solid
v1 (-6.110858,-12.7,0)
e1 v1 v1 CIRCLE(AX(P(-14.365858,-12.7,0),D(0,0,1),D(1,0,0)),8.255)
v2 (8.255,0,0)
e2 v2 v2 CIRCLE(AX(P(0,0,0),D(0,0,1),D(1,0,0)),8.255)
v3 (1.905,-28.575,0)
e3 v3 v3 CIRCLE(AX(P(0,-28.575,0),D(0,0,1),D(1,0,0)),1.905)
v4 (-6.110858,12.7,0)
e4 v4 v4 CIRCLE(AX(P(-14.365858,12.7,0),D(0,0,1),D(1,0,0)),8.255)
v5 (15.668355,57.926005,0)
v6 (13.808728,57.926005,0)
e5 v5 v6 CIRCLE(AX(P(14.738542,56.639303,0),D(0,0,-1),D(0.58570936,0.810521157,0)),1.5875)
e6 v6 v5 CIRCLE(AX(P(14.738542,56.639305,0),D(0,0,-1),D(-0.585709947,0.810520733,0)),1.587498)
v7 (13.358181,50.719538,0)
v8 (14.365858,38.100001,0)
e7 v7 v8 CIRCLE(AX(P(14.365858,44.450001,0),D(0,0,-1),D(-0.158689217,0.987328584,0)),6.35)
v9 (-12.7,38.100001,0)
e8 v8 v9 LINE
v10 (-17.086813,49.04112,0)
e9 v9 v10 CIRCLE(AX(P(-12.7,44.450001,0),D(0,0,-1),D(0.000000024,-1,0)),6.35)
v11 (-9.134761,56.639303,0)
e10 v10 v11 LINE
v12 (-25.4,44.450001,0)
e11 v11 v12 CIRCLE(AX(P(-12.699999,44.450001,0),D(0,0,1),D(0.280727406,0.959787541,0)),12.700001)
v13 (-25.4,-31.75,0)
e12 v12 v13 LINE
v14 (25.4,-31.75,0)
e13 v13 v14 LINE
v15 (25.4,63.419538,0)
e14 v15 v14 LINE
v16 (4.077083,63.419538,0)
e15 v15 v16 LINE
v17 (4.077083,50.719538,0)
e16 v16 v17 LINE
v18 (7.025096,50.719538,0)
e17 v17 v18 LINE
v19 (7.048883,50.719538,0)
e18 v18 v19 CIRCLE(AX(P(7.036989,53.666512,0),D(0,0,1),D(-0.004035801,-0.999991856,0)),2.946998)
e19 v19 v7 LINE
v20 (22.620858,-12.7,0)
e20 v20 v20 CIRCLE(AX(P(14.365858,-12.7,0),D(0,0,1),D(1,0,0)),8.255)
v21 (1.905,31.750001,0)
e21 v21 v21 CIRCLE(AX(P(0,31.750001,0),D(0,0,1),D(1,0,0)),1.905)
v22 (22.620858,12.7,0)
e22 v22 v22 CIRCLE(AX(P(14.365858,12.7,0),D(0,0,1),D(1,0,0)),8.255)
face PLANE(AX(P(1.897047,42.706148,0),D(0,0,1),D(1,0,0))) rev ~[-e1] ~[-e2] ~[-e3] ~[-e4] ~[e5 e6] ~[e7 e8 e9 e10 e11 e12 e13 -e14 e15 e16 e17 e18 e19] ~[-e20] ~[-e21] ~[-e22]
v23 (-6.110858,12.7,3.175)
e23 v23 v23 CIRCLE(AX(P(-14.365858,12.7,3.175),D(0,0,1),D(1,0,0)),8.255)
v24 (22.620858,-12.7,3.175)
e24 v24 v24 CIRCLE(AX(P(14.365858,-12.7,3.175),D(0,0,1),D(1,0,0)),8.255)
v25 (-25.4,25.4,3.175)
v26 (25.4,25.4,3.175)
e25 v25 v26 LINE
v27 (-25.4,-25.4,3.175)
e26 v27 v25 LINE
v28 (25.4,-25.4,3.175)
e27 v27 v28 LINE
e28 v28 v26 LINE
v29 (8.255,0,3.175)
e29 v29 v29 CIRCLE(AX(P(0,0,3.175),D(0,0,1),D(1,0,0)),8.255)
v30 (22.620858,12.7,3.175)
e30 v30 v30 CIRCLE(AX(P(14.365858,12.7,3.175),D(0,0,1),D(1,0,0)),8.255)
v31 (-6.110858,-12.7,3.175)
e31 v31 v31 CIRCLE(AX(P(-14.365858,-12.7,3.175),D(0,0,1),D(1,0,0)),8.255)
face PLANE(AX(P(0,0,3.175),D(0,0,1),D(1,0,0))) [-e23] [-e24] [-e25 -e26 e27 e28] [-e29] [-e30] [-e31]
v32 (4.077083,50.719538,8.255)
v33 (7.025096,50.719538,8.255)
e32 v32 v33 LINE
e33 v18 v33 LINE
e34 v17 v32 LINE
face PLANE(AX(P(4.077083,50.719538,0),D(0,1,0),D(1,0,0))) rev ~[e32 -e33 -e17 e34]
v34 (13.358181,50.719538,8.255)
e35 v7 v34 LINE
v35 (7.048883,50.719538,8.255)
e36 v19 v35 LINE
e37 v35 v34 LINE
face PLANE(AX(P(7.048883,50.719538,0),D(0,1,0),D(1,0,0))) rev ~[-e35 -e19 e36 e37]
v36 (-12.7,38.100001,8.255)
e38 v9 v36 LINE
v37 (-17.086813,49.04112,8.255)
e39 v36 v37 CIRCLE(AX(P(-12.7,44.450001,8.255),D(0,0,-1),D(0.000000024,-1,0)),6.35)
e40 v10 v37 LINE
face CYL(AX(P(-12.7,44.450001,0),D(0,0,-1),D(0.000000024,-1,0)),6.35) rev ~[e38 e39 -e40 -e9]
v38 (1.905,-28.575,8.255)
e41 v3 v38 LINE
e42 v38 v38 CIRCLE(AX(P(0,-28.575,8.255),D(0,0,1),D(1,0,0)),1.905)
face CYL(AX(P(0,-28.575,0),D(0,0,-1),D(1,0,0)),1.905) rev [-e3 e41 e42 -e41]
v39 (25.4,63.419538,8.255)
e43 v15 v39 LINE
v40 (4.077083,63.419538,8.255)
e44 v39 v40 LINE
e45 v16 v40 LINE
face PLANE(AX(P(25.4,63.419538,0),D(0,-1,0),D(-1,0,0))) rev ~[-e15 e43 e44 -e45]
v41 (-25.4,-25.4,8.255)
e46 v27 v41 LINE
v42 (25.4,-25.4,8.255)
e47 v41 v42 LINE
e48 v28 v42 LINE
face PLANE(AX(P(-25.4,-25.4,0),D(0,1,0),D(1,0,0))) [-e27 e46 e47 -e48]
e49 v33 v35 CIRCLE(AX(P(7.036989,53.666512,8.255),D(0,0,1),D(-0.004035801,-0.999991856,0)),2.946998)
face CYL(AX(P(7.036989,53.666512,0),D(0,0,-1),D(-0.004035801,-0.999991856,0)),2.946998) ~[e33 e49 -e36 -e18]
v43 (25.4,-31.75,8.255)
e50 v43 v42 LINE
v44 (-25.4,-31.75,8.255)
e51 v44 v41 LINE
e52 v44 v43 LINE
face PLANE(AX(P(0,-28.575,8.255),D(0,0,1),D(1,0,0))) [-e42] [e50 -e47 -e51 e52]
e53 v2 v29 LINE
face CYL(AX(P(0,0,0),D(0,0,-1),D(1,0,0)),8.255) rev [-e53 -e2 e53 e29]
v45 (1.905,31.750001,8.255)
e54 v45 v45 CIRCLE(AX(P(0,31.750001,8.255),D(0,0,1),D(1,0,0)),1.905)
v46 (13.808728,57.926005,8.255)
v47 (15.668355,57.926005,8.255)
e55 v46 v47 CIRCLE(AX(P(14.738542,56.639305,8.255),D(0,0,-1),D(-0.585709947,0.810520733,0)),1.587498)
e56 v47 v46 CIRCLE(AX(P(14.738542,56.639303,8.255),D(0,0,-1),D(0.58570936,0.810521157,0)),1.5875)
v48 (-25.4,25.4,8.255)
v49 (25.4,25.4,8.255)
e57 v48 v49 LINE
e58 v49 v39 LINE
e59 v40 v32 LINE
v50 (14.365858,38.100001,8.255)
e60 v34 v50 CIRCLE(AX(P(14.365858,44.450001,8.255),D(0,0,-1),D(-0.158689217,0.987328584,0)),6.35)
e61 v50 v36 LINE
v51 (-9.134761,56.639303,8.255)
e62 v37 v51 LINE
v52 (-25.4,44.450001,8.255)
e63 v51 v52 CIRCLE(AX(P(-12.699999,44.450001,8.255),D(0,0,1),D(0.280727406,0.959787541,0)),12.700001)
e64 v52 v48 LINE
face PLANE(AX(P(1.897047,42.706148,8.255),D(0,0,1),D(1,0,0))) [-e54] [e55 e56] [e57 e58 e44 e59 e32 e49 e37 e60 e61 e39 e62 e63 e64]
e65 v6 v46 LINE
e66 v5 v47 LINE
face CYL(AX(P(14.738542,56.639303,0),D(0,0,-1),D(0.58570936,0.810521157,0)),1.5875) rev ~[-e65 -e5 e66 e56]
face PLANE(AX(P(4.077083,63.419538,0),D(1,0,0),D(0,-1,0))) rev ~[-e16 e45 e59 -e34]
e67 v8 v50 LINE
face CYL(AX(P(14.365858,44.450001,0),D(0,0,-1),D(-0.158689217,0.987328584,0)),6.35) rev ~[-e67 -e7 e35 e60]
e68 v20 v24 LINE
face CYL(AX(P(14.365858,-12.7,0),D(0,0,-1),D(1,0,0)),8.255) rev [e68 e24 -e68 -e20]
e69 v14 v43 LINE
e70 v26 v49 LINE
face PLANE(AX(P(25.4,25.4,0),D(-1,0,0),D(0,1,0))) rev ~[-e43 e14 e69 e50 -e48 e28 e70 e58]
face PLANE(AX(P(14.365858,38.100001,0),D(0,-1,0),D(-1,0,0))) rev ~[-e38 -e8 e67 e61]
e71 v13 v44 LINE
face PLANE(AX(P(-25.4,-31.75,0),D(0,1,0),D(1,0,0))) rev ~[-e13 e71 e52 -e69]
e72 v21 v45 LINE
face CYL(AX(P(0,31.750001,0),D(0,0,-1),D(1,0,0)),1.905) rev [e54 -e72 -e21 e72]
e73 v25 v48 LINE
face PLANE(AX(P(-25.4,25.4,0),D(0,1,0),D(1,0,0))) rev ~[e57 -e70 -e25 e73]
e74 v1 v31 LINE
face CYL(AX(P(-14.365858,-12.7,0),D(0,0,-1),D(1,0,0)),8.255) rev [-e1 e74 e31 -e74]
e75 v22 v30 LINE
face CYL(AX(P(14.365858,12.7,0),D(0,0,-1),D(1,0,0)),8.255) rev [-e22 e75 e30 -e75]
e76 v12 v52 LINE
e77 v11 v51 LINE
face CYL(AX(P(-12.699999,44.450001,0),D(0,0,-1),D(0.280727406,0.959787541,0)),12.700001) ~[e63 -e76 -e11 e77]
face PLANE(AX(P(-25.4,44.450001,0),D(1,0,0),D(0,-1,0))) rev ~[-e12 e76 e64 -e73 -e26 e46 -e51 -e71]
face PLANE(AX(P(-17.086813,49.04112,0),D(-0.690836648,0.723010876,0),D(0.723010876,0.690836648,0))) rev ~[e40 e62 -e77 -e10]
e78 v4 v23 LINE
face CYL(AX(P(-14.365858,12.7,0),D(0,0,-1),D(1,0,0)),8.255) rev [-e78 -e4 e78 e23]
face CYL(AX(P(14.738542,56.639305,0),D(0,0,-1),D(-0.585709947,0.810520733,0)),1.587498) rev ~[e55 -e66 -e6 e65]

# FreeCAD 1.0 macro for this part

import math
import FreeCAD as App
import Part
import Sketcher
Q = App.Units.Quantity

doc = App.newDocument("Part")
body = doc.addObject("PartDesign::Body", "Body")

sketch1 = body.newObject("Sketcher::SketchObject", "Sketch")
sketch1.AttachmentSupport = (doc.getObject("XY_Plane"), [""])
sketch1.MapMode = "FlatFace"
sketch1.addGeometry(Part.LineSegment(App.Vector(-25, 25, 0), App.Vector(-25, -25, 0)), False)
sketch1.addGeometry(Part.LineSegment(App.Vector(-25, -25, 0), App.Vector(25, -25, 0)), False)
sketch1.addGeometry(Part.LineSegment(App.Vector(25, -25, 0), App.Vector(25, 25, 0)), False)
sketch1.addGeometry(Part.LineSegment(App.Vector(25, 25, 0), App.Vector(-25, 25, 0)), False)
sketch1.addGeometry(Part.Circle(App.Vector(-14, -13, 0), App.Vector(0, 0, 1), 8), False)
sketch1.addGeometry(Part.Circle(App.Vector(14, -13, 0), App.Vector(0, 0, 1), 8), False)
sketch1.addGeometry(Part.Circle(App.Vector(-14, 13, 0), App.Vector(0, 0, 1), 8), False)
sketch1.addGeometry(Part.Circle(App.Vector(0, 0, 0), App.Vector(0, 0, 1), 8), False)
sketch1.addGeometry(Part.Circle(App.Vector(14, 13, 0), App.Vector(0, 0, 1), 8), False)
sketch1.addConstraint(Sketcher.Constraint("Coincident", 0, 2, 1, 1))
sketch1.addConstraint(Sketcher.Constraint("Coincident", 1, 2, 2, 1))
sketch1.addConstraint(Sketcher.Constraint("Coincident", 2, 2, 3, 1))
sketch1.addConstraint(Sketcher.Constraint("Coincident", 3, 2, 0, 1))
sketch1.addConstraint(Sketcher.Constraint("Vertical", 0))
sketch1.addConstraint(Sketcher.Constraint("Horizontal", 1))
sketch1.addConstraint(Sketcher.Constraint("Vertical", 2))
sketch1.addConstraint(Sketcher.Constraint("Horizontal", 3))
sketch1.addConstraint(Sketcher.Constraint("Coincident", 7, 3, -1, 1))
sketch1.addConstraint(Sketcher.Constraint("Equal", 4, 5))
sketch1.addConstraint(Sketcher.Constraint("Equal", 5, 6))
sketch1.addConstraint(Sketcher.Constraint("Equal", 6, 7))
sketch1.addConstraint(Sketcher.Constraint("Equal", 7, 8))
sketch1.addConstraint(Sketcher.Constraint("Symmetric", 5, 3, 6, 3, -1, 1))
sketch1.addConstraint(Sketcher.Constraint("Symmetric", 4, 3, 8, 3, -1, 1))
sketch1.addConstraint(Sketcher.Constraint("Symmetric", 0, 2, 2, 2, -1, 1))
sketch1.addConstraint(Sketcher.Constraint("Symmetric", 4, 3, 5, 3, -2))
sketch1.addConstraint(Sketcher.Constraint("Equal", 3, 0))
sketch1.addConstraint(Sketcher.Constraint("Diameter", 4, Q("0.65 in")))
sketch1.addConstraint(Sketcher.Constraint("DistanceX", 1, 1, 1, 2, Q("2 in")))
sketch1.addConstraint(Sketcher.Constraint("DistanceY", 4, 3, 6, 3, Q("1 in")))
sketch1.addConstraint(Sketcher.Constraint("DistanceX", 0, 2, 4, 3, Q("11.034142 mm")))
pad1 = body.newObject("PartDesign::Pad", "Pad")
pad1.Profile = sketch1
pad1.Length = Q("0.125 in")

sketch2 = body.newObject("Sketcher::SketchObject", "Sketch001")
sketch2.AttachmentSupport = (doc.getObject("XY_Plane"), [""])
sketch2.MapMode = "FlatFace"
sketch2.addGeometry(Part.LineSegment(App.Vector(-25.4, 44.45, 0), App.Vector(-25.4, 25.4, 0)), False)
sketch2.addGeometry(Part.LineSegment(App.Vector(-25.4, 25.4, 0), App.Vector(25.4, 25.4, 0)), False)
sketch2.addGeometry(Part.LineSegment(App.Vector(25.4, 25.4, 0), App.Vector(25.4, 63.42, 0)), False)
sketch2.addGeometry(Part.LineSegment(App.Vector(25.4, 63.42, 0), App.Vector(4.077, 63.42, 0)), False)
sketch2.addGeometry(Part.LineSegment(App.Vector(4.077, 63.42, 0), App.Vector(4.077, 50.72, 0)), False)
sketch2.addGeometry(Part.LineSegment(App.Vector(4.077, 50.72, 0), App.Vector(7.025, 50.72, 0)), False)
sketch2.addGeometry(Part.ArcOfCircle(Part.Circle(App.Vector(7.037, 53.667, 0), App.Vector(0, 0, 1), 2.947), math.radians(-90.23), math.radians(-89.77)), False)
sketch2.addGeometry(Part.LineSegment(App.Vector(7.049, 50.72, 0), App.Vector(13.358, 50.72, 0)), False)
sketch2.addGeometry(Part.ArcOfCircle(Part.Circle(App.Vector(14.366, 44.45, 0), App.Vector(0, 0, 1), 6.35), math.radians(-90), math.radians(99)), False)
sketch2.addGeometry(Part.LineSegment(App.Vector(14.366, 38.1, 0), App.Vector(-12.7, 38.1, 0)), False)
sketch2.addGeometry(Part.ArcOfCircle(Part.Circle(App.Vector(-12.7, 44.45, 0), App.Vector(0, 0, 1), 6.35), math.radians(134), math.radians(270)), False)
sketch2.addGeometry(Part.LineSegment(App.Vector(-17.087, 49.041, 0), App.Vector(-9.135, 56.639, 0)), False)
sketch2.addGeometry(Part.ArcOfCircle(Part.Circle(App.Vector(-12.7, 44.45, 0), App.Vector(0, 0, 1), 12.7), math.radians(74), math.radians(180)), False)
sketch2.addGeometry(Part.Circle(App.Vector(0, 31.75, 0), App.Vector(0, 0, 1), 1.905), False)
sketch2.addGeometry(Part.ArcOfCircle(Part.Circle(App.Vector(14.739, 56.639, 0), App.Vector(0, 0, 1), 1.587), math.radians(54), math.radians(126)), False)
sketch2.addGeometry(Part.ArcOfCircle(Part.Circle(App.Vector(14.739, 56.639, 0), App.Vector(0, 0, 1), 1.587), math.radians(126), math.radians(414)), False)
sketch2.addGeometry(Part.LineSegment(App.Vector(-25.4, -25.4, 0), App.Vector(-25.4, -31.75, 0)), False)
sketch2.addGeometry(Part.LineSegment(App.Vector(-25.4, -31.75, 0), App.Vector(25.4, -31.75, 0)), False)
sketch2.addGeometry(Part.LineSegment(App.Vector(25.4, -31.75, 0), App.Vector(25.4, -25.4, 0)), False)
sketch2.addGeometry(Part.LineSegment(App.Vector(25.4, -25.4, 0), App.Vector(-25.4, -25.4, 0)), False)
sketch2.addGeometry(Part.Circle(App.Vector(0, -28.575, 0), App.Vector(0, 0, 1), 1.905), False)
sketch2.addConstraint(Sketcher.Constraint("Coincident", 0, 2, 1, 1))
sketch2.addConstraint(Sketcher.Constraint("Coincident", 1, 2, 2, 1))
sketch2.addConstraint(Sketcher.Constraint("Coincident", 2, 2, 3, 1))
sketch2.addConstraint(Sketcher.Constraint("Coincident", 3, 2, 4, 1))
sketch2.addConstraint(Sketcher.Constraint("Coincident", 4, 2, 5, 1))
sketch2.addConstraint(Sketcher.Constraint("Coincident", 5, 2, 6, 1))
sketch2.addConstraint(Sketcher.Constraint("Coincident", 6, 2, 7, 1))
sketch2.addConstraint(Sketcher.Constraint("Coincident", 7, 2, 8, 2))
sketch2.addConstraint(Sketcher.Constraint("Tangent", 8, 1, 9, 1))
sketch2.addConstraint(Sketcher.Constraint("Tangent", 9, 2, 10, 2))
sketch2.addConstraint(Sketcher.Constraint("Tangent", 10, 1, 11, 1))
sketch2.addConstraint(Sketcher.Constraint("Coincident", 11, 2, 12, 1))
sketch2.addConstraint(Sketcher.Constraint("Tangent", 12, 2, 0, 1))
sketch2.addConstraint(Sketcher.Constraint("Tangent", 14, 1, 15, 2))
sketch2.addConstraint(Sketcher.Constraint("Coincident", 15, 1, 14, 2))
sketch2.addConstraint(Sketcher.Constraint("Coincident", 16, 2, 17, 1))
sketch2.addConstraint(Sketcher.Constraint("Coincident", 17, 2, 18, 1))
sketch2.addConstraint(Sketcher.Constraint("Coincident", 18, 2, 19, 1))
sketch2.addConstraint(Sketcher.Constraint("Coincident", 19, 2, 16, 1))
sketch2.addConstraint(Sketcher.Constraint("Vertical", 0))
sketch2.addConstraint(Sketcher.Constraint("Horizontal", 1))
sketch2.addConstraint(Sketcher.Constraint("Vertical", 2))
sketch2.addConstraint(Sketcher.Constraint("Horizontal", 3))
sketch2.addConstraint(Sketcher.Constraint("Vertical", 4))
sketch2.addConstraint(Sketcher.Constraint("Horizontal", 5))
sketch2.addConstraint(Sketcher.Constraint("Horizontal", 7))
sketch2.addConstraint(Sketcher.Constraint("Horizontal", 9))
sketch2.addConstraint(Sketcher.Constraint("Vertical", 16))
sketch2.addConstraint(Sketcher.Constraint("Horizontal", 17))
sketch2.addConstraint(Sketcher.Constraint("Vertical", 18))
sketch2.addConstraint(Sketcher.Constraint("Horizontal", 19))
sketch2.addConstraint(Sketcher.Constraint("Coincident", 12, 3, 10, 3))
sketch2.addConstraint(Sketcher.Constraint("Equal", 8, 10))
sketch2.addConstraint(Sketcher.Constraint("Equal", 13, 20))
sketch2.addConstraint(Sketcher.Constraint("Symmetric", 0, 2, 18, 2, -1, 1))
sketch2.addConstraint(Sketcher.Constraint("PointOnObject", 13, 3, -2))
sketch2.addConstraint(Sketcher.Constraint("PointOnObject", 20, 3, -2))
sketch2.addConstraint(Sketcher.Constraint("Horizontal", 5, 2, 6, 2))
sketch2.addConstraint(Sketcher.Constraint("Horizontal", 15, 3, 11, 2))
sketch2.addConstraint(Sketcher.Constraint("Horizontal", 14, 1, 15, 1))
sketch2.addConstraint(Sketcher.Constraint("Vertical", 12, 2, 16, 2))
sketch2.addConstraint(Sketcher.Constraint("Vertical", 2, 2, 17, 2))
sketch2.addConstraint(Sketcher.Constraint("Radius", 12, Q("0.5 in")))
sketch2.addConstraint(Sketcher.Constraint("Diameter", 13, Q("0.15 in")))
sketch2.addConstraint(Sketcher.Constraint("DistanceX", 1, 1, 1, 2, Q("2 in")))
sketch2.addConstraint(Sketcher.Constraint("Radius", 8, Q("0.25 in")))
sketch2.addConstraint(Sketcher.Constraint("DistanceY", 4, 2, 4, 1, Q("0.5 in")))
sketch2.addConstraint(Sketcher.Constraint("DistanceY", -1, 1, 0, 2, Q("1 in")))
sketch2.addConstraint(Sketcher.Constraint("Radius", 14, Q("0.0624999 in")))
sketch2.addConstraint(Sketcher.Constraint("DistanceY", 16, 2, 12, 2, Q("3 in")))
sketch2.addConstraint(Sketcher.Constraint("DistanceY", 0, 2, 0, 1, Q("0.75 in")))
sketch2.addConstraint(Sketcher.Constraint("DistanceY", 13, 3, 12, 3, Q("0.5 in")))
sketch2.addConstraint(Sketcher.Constraint("Radius", 6, Q("2.946998 mm")))
sketch2.addConstraint(Sketcher.Constraint("DistanceY", 20, 3, -1, 1, Q("1.125 in")))
sketch2.addConstraint(Sketcher.Constraint("DistanceX", 4, 2, 6, 2, Q("0.117 in")))
sketch2.addConstraint(Sketcher.Constraint("DistanceY", 2, 1, 2, 2, Q("38.019538 mm")))
sketch2.addConstraint(Sketcher.Constraint("DistanceY", 8, 3, 15, 3, Q("12.189302 mm")))
sketch2.addConstraint(Sketcher.Constraint("DistanceY", 14, 3, 14, 1, Q("1.2867 mm")))
sketch2.addConstraint(Sketcher.Constraint("DistanceX", 3, 2, 3, 1, Q("21.322917 mm")))
sketch2.addConstraint(Sketcher.Constraint("DistanceX", 5, 1, 5, 2, Q("2.948013 mm")))
sketch2.addConstraint(Sketcher.Constraint("DistanceX", 7, 1, 7, 2, Q("6.309298 mm")))
sketch2.addConstraint(Sketcher.Constraint("DistanceX", -1, 1, 14, 3, Q("14.738542 mm")))
pad2 = body.newObject("PartDesign::Pad", "Pad001")
pad2.Profile = sketch2
pad2.Length = Q("0.325 in")

doc.recompute()
